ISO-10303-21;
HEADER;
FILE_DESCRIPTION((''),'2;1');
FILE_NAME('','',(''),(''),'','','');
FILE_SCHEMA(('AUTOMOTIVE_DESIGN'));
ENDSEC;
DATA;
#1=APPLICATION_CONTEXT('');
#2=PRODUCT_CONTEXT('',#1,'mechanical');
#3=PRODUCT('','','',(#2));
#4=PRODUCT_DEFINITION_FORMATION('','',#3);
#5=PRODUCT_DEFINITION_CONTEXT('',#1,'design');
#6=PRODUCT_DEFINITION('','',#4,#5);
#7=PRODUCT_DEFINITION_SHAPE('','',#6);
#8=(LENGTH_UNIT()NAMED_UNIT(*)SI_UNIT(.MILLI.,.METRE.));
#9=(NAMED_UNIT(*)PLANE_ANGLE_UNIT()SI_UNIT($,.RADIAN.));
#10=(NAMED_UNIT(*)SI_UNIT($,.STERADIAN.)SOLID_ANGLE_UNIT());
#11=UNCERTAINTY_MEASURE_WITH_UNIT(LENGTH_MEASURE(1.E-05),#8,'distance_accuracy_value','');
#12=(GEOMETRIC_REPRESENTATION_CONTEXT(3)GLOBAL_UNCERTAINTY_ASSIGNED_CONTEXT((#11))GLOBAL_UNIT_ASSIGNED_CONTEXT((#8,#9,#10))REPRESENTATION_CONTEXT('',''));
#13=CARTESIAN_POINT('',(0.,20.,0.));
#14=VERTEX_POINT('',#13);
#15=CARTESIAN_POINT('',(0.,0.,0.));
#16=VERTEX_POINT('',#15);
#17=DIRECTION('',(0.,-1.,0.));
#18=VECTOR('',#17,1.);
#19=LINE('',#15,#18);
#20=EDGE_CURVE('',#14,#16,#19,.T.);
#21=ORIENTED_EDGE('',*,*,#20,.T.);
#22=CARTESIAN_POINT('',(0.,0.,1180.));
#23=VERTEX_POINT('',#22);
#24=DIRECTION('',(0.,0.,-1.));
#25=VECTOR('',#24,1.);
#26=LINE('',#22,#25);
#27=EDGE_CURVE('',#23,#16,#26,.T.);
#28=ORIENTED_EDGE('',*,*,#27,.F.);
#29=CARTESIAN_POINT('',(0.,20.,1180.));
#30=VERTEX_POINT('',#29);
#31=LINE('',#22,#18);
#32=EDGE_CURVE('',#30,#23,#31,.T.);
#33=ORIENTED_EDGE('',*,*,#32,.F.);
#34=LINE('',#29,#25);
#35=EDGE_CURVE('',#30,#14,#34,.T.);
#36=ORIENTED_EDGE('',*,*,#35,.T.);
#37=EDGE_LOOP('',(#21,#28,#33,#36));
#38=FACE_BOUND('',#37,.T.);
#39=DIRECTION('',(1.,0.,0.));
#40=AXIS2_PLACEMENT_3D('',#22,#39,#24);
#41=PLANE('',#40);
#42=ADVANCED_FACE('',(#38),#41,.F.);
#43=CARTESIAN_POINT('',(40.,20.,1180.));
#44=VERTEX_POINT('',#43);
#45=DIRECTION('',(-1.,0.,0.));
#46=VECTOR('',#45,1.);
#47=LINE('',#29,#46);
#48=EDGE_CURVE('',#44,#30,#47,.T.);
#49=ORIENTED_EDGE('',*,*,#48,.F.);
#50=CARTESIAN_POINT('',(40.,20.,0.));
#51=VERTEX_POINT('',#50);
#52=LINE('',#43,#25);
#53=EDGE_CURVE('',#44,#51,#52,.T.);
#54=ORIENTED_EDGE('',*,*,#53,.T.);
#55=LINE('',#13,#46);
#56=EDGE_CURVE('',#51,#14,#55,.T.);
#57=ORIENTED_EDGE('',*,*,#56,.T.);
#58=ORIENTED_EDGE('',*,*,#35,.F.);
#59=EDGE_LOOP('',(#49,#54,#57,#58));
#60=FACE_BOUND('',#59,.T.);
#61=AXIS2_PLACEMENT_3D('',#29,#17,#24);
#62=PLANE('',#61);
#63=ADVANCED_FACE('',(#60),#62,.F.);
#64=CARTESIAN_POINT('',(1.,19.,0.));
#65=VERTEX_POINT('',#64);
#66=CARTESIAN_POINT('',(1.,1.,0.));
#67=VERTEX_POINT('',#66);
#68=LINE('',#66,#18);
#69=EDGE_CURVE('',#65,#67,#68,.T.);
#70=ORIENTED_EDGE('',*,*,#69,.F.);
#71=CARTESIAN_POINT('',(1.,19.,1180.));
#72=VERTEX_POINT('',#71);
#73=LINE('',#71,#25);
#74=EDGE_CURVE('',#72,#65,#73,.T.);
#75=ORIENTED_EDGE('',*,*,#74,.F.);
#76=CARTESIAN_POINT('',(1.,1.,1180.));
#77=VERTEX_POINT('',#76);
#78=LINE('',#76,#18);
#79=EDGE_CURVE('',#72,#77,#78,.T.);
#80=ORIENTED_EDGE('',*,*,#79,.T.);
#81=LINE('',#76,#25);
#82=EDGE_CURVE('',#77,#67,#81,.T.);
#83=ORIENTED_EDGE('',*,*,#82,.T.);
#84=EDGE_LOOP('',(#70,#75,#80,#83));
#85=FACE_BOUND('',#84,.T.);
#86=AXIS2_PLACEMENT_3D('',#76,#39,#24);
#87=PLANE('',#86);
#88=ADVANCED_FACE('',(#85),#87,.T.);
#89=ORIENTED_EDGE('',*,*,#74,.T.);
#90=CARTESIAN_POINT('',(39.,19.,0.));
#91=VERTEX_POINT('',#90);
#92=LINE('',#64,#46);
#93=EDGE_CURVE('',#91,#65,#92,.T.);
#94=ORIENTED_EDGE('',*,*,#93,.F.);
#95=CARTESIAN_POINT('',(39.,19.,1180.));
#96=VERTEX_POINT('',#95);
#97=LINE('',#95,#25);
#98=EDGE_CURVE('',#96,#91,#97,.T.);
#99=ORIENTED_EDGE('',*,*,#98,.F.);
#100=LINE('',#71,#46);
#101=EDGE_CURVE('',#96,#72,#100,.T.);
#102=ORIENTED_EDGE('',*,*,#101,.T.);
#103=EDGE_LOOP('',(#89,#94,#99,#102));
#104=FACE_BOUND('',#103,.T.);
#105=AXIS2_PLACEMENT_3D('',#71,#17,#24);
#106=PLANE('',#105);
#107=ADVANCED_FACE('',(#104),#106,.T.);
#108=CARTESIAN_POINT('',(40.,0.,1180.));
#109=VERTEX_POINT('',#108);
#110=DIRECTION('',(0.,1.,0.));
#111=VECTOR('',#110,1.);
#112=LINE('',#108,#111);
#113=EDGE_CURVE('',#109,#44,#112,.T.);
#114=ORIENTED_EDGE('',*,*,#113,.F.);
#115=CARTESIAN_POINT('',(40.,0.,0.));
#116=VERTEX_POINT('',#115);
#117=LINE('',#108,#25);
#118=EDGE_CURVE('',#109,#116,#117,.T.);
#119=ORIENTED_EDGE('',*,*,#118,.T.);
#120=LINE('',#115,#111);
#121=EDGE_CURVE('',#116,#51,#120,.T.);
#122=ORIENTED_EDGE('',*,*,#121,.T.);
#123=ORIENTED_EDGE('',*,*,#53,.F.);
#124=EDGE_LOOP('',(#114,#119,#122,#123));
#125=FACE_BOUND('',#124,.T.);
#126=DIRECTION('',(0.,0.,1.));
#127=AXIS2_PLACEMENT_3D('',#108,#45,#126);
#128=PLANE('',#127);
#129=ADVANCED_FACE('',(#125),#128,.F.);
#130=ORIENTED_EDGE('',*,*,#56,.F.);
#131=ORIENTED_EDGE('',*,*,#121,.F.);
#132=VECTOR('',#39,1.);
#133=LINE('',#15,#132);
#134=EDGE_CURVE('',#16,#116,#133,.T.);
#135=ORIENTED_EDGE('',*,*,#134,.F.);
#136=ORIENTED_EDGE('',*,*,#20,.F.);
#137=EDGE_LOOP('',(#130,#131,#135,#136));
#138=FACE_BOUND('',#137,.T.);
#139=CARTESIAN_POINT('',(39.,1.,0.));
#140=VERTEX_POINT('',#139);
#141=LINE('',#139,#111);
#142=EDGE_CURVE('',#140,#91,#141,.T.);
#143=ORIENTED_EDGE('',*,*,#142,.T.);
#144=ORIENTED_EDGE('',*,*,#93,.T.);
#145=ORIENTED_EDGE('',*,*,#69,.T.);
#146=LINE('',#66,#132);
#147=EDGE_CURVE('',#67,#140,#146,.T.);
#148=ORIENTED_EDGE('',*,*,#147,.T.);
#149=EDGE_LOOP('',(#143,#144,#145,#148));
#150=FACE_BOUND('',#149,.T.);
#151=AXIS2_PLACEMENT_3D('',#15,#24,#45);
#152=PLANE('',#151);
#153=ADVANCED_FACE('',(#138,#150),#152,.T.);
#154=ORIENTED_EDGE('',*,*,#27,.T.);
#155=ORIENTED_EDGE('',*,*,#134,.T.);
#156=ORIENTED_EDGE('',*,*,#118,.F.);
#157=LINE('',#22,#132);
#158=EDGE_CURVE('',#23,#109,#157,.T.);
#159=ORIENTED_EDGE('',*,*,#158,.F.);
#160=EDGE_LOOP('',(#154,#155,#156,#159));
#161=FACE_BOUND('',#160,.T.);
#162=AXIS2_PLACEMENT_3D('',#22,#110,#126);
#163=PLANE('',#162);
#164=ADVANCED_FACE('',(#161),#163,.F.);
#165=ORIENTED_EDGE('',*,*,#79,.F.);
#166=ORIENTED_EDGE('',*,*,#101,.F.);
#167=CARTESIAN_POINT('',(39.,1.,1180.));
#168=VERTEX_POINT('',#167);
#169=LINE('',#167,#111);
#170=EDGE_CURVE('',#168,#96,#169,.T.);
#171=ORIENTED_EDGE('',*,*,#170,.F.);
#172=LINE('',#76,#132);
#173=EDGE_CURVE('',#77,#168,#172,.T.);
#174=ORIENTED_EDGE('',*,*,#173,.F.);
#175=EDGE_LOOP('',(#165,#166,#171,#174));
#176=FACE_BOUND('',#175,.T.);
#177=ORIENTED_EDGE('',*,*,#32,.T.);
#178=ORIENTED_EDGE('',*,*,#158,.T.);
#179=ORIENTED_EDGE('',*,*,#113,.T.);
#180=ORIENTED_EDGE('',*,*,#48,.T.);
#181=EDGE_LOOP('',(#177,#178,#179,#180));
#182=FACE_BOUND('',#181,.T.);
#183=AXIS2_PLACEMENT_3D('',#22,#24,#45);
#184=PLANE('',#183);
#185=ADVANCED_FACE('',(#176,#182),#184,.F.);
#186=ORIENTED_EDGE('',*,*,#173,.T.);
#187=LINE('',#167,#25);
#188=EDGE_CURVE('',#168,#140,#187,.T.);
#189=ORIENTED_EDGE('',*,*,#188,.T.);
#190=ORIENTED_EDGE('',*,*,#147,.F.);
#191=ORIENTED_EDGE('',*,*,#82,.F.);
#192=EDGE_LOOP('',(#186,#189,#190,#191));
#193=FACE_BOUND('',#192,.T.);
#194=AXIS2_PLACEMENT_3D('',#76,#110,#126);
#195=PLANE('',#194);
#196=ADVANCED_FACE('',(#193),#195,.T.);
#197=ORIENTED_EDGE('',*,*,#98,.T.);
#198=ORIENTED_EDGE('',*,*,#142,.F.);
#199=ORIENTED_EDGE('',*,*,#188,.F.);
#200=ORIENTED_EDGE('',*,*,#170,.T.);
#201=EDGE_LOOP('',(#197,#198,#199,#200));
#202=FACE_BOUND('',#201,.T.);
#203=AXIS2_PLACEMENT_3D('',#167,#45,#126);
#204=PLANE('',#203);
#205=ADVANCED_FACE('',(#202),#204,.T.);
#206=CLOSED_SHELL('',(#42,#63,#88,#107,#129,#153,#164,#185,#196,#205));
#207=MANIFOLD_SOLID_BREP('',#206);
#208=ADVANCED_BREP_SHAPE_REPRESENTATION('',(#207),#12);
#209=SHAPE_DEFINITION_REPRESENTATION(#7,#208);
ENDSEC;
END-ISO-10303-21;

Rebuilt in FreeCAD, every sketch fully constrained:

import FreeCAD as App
import Part
import Sketcher

V = App.Vector
Q = App.Units.Quantity

doc = App.newDocument("Part")
params = doc.addObject("Spreadsheet::Sheet", "Params")
for row, (alias, value) in enumerate([
    ("sketch1_width", "40 mm"),
    ("sketch1_width2", "38 mm"),
    ("sketch1_height", "20 mm"),
    ("sketch1_height2", "18 mm"),
    ("pad1_length", "1180 mm"),
], start=1):
    params.set(f"A{row}", alias)
    params.set(f"B{row}", "=" + value)
    params.setAlias(f"B{row}", alias)

body = doc.addObject("PartDesign::Body", "Body")

# Sketch on XY plane
sketch1 = body.newObject("Sketcher::SketchObject", "Sketch")
sketch1.AttachmentSupport = (doc.getObject("XY_Plane"), [""])
sketch1.MapMode = "FlatFace"
sketch1.addGeometry([
    Part.LineSegment(V(0, 20, 0), V(0, 0, 0)),  # 0
    Part.LineSegment(V(0, 0, 0), V(40, 0, 0)),  # 1
    Part.LineSegment(V(40, 0, 0), V(40, 20, 0)),  # 2
    Part.LineSegment(V(40, 20, 0), V(0, 20, 0)),  # 3
    Part.LineSegment(V(39, 1, 0), V(1, 1, 0)),  # 4
    Part.LineSegment(V(1, 1, 0), V(1, 19, 0)),  # 5
    Part.LineSegment(V(1, 19, 0), V(39, 19, 0)),  # 6
    Part.LineSegment(V(39, 19, 0), V(39, 1, 0)),  # 7
], False)
sketch1.addConstraint([
    Sketcher.Constraint("Coincident", 0, 2, 1, 1),
    Sketcher.Constraint("Coincident", 1, 2, 2, 1),
    Sketcher.Constraint("Coincident", 2, 2, 3, 1),
    Sketcher.Constraint("Coincident", 3, 2, 0, 1),
    Sketcher.Constraint("Coincident", 4, 2, 5, 1),
    Sketcher.Constraint("Coincident", 5, 2, 6, 1),
    Sketcher.Constraint("Coincident", 6, 2, 7, 1),
    Sketcher.Constraint("Coincident", 7, 2, 4, 1),
    Sketcher.Constraint("Vertical", 0),
    Sketcher.Constraint("Horizontal", 1),
    Sketcher.Constraint("Vertical", 2),
    Sketcher.Constraint("Horizontal", 3),
    Sketcher.Constraint("Horizontal", 4),
    Sketcher.Constraint("Vertical", 5),
    Sketcher.Constraint("Horizontal", 6),
    Sketcher.Constraint("Vertical", 7),
    Sketcher.Constraint("Coincident", 0, 2, -1, 1),
    Sketcher.Constraint("DistanceX", 1, 1, 1, 2, Q("40 mm")),
    Sketcher.Constraint("DistanceX", 4, 2, 4, 1, Q("38 mm")),
    Sketcher.Constraint("DistanceY", 0, 2, 0, 1, Q("20 mm")),
    Sketcher.Constraint("DistanceY", 5, 1, 5, 2, Q("18 mm")),
    Sketcher.Constraint("DistanceX", -1, 1, 4, 2, Q("1 mm")),
    Sketcher.Constraint("DistanceY", -1, 1, 4, 2, Q("1 mm")),
])
sketch1.setExpression("Constraints[17]", "Params.sketch1_width")
sketch1.setExpression("Constraints[18]", "Params.sketch1_width2")
sketch1.setExpression("Constraints[19]", "Params.sketch1_height")
sketch1.setExpression("Constraints[20]", "Params.sketch1_height2")
pad1 = body.newObject("PartDesign::Pad", "Pad")
pad1.Profile = sketch1
pad1.setExpression("Length", "Params.pad1_length")

doc.recompute()
